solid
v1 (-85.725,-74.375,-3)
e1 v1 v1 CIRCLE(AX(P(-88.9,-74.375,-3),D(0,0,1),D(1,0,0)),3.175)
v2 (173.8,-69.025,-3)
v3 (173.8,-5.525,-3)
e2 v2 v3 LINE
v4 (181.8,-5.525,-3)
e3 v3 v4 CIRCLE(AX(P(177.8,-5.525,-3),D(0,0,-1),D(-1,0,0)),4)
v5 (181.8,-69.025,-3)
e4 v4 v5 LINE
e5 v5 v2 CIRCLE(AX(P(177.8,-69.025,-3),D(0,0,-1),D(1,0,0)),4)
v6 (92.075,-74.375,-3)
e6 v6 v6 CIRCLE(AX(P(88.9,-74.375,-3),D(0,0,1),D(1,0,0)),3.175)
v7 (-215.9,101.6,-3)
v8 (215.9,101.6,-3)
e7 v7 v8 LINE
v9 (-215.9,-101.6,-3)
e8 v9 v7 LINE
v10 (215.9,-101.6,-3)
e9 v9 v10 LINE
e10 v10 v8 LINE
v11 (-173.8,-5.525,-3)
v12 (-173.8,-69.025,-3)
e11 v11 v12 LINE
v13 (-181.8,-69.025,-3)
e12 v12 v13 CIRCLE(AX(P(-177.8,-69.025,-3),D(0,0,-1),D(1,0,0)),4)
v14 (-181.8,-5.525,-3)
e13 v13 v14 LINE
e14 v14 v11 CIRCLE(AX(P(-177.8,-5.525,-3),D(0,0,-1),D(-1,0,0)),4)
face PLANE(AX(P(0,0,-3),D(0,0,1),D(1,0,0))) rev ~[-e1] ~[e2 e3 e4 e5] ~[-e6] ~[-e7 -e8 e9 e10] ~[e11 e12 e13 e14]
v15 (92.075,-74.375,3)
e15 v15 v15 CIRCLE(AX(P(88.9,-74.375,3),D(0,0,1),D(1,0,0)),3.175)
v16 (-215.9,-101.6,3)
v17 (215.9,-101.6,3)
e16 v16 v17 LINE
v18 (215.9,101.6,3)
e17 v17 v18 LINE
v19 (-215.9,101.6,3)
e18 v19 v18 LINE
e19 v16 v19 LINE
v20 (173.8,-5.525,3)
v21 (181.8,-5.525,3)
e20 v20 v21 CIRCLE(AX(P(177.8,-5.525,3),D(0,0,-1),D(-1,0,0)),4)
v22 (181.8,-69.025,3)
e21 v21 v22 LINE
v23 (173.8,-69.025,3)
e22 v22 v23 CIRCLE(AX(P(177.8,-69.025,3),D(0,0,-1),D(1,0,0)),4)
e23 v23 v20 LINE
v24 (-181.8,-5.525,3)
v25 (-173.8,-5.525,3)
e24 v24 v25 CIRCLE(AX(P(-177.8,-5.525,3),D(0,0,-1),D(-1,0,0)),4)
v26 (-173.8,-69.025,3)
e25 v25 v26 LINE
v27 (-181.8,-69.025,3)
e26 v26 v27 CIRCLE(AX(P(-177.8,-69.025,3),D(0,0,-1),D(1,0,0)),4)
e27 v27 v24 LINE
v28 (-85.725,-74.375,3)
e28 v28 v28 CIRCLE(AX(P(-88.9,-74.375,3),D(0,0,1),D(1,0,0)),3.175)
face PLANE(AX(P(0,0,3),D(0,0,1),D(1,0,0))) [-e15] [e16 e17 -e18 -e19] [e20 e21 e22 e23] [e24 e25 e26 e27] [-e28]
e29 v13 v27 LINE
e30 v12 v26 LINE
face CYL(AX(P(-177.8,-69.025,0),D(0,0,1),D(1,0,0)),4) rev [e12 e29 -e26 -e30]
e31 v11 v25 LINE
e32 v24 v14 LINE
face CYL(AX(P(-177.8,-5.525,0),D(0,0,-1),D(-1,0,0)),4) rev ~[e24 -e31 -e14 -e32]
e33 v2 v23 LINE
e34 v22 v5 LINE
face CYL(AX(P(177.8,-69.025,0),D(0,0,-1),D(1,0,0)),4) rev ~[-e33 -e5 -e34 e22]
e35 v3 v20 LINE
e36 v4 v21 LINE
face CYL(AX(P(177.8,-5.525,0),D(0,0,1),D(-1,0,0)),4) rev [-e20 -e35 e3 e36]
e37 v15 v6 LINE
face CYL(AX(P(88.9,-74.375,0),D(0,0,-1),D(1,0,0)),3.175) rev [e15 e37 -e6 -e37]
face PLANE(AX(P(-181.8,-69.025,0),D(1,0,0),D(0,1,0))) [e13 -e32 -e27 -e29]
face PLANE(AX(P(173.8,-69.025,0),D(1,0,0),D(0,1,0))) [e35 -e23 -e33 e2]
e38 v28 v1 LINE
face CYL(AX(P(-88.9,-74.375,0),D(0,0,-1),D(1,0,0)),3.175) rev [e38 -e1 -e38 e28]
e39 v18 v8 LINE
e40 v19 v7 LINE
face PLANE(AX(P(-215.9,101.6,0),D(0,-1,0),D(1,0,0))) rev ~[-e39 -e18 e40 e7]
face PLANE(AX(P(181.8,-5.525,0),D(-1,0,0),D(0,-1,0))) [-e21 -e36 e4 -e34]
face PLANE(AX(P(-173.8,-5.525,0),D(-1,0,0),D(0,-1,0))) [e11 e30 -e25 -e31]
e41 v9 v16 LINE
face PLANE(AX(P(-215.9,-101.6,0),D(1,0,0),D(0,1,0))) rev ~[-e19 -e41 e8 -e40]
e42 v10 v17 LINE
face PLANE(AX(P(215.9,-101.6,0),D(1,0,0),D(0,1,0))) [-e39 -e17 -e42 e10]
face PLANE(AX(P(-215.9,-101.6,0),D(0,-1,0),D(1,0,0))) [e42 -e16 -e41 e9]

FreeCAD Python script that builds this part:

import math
import FreeCAD as App
import Part
import Sketcher
from FreeCAD import Vector
Q = App.Units.Quantity

doc = App.newDocument("Part")
body = doc.addObject("PartDesign::Body", "Body")

# Sketch on XY plane
sketch1 = doc.addObject("Sketcher::SketchObject", "Sketch")
body.addObject(sketch1)
sketch1.AttachmentSupport = (doc.XY_Plane, [""])
sketch1.MapMode = "FlatFace"
sketch1.addGeometry([
    Part.LineSegment(Vector(-215.9, 101.6, 0), Vector(-215.9, -101.6, 0)),  # 0
    Part.LineSegment(Vector(-215.9, -101.6, 0), Vector(215.9, -101.6, 0)),  # 1
    Part.LineSegment(Vector(215.9, -101.6, 0), Vector(215.9, 101.6, 0)),  # 2
    Part.LineSegment(Vector(215.9, 101.6, 0), Vector(-215.9, 101.6, 0)),  # 3
    Part.Circle(Vector(-88.9, -74.375, 0), Vector(0, 0, 1), 3.175),  # 4
    Part.Circle(Vector(88.9, -74.375, 0), Vector(0, 0, 1), 3.175),  # 5
    Part.ArcOfCircle(Part.Circle(Vector(-177.8, -69.025, 0), Vector(0, 0, 1), 4), math.radians(180), math.radians(360)),  # 6
    Part.LineSegment(Vector(-181.8, -69.025, 0), Vector(-181.8, -5.525, 0)),  # 7
    Part.ArcOfCircle(Part.Circle(Vector(-177.8, -5.525, 0), Vector(0, 0, 1), 4), math.radians(0), math.radians(180)),  # 8
    Part.LineSegment(Vector(-173.8, -5.525, 0), Vector(-173.8, -69.025, 0)),  # 9
    Part.LineSegment(Vector(181.8, -5.525, 0), Vector(181.8, -69.025, 0)),  # 10
    Part.ArcOfCircle(Part.Circle(Vector(177.8, -69.025, 0), Vector(0, 0, 1), 4), math.radians(180), math.radians(360)),  # 11
    Part.LineSegment(Vector(173.8, -69.025, 0), Vector(173.8, -5.525, 0)),  # 12
    Part.ArcOfCircle(Part.Circle(Vector(177.8, -5.525, 0), Vector(0, 0, 1), 4), math.radians(0), math.radians(180)),  # 13
], False)
sketch1.addConstraint([
    Sketcher.Constraint("Coincident", 0, 2, 1, 1),
    Sketcher.Constraint("Coincident", 1, 2, 2, 1),
    Sketcher.Constraint("Coincident", 2, 2, 3, 1),
    Sketcher.Constraint("Coincident", 3, 2, 0, 1),
    Sketcher.Constraint("Tangent", 6, 1, 7, 1),
    Sketcher.Constraint("Tangent", 7, 2, 8, 2),
    Sketcher.Constraint("Tangent", 8, 1, 9, 1),
    Sketcher.Constraint("Tangent", 9, 2, 6, 2),
    Sketcher.Constraint("Tangent", 10, 2, 11, 2),
    Sketcher.Constraint("Tangent", 11, 1, 12, 1),
    Sketcher.Constraint("Tangent", 12, 2, 13, 2),
    Sketcher.Constraint("Tangent", 13, 1, 10, 1),
    Sketcher.Constraint("Vertical", 0),
    Sketcher.Constraint("Horizontal", 1),
    Sketcher.Constraint("Vertical", 2),
    Sketcher.Constraint("Horizontal", 3),
    Sketcher.Constraint("Vertical", 7),
    Sketcher.Constraint("Vertical", 9),
    Sketcher.Constraint("Vertical", 10),
    Sketcher.Constraint("Vertical", 12),
    Sketcher.Constraint("Equal", 4, 5),
    Sketcher.Constraint("Equal", 8, 11),
    Sketcher.Constraint("Symmetric", 0, 2, 2, 2, -1, 1),
    Sketcher.Constraint("Symmetric", 4, 3, 5, 3, -2),
    Sketcher.Constraint("Symmetric", 6, 3, 11, 3, -2),
    Sketcher.Constraint("Horizontal", 8, 3, 13, 3),
    Sketcher.Constraint("Diameter", 4, Q("0.25 in")),
    Sketcher.Constraint("DistanceX", 1, 1, 1, 2, Q("17 in")),
    Sketcher.Constraint("DistanceY", 0, 2, 0, 1, Q("8 in")),
    Sketcher.Constraint("DistanceY", 7, 1, 7, 2, Q("2.5 in")),
    Sketcher.Constraint("DistanceX", 6, 3, -1, 1, Q("7 in")),
    Sketcher.Constraint("DistanceX", 4, 3, 5, 3, Q("7 in")),
    Sketcher.Constraint("Radius", 6, 4.0),
    Sketcher.Constraint("DistanceY", 4, 3, -1, 1, 74.375),
    Sketcher.Constraint("DistanceY", 6, 3, -1, 1, 69.025),
])
pad1 = doc.addObject("PartDesign::Pad", "Pad")
body.addObject(pad1)
pad1.Profile = sketch1
pad1.Length = 6
pad1.Midplane = True

doc.recompute()
